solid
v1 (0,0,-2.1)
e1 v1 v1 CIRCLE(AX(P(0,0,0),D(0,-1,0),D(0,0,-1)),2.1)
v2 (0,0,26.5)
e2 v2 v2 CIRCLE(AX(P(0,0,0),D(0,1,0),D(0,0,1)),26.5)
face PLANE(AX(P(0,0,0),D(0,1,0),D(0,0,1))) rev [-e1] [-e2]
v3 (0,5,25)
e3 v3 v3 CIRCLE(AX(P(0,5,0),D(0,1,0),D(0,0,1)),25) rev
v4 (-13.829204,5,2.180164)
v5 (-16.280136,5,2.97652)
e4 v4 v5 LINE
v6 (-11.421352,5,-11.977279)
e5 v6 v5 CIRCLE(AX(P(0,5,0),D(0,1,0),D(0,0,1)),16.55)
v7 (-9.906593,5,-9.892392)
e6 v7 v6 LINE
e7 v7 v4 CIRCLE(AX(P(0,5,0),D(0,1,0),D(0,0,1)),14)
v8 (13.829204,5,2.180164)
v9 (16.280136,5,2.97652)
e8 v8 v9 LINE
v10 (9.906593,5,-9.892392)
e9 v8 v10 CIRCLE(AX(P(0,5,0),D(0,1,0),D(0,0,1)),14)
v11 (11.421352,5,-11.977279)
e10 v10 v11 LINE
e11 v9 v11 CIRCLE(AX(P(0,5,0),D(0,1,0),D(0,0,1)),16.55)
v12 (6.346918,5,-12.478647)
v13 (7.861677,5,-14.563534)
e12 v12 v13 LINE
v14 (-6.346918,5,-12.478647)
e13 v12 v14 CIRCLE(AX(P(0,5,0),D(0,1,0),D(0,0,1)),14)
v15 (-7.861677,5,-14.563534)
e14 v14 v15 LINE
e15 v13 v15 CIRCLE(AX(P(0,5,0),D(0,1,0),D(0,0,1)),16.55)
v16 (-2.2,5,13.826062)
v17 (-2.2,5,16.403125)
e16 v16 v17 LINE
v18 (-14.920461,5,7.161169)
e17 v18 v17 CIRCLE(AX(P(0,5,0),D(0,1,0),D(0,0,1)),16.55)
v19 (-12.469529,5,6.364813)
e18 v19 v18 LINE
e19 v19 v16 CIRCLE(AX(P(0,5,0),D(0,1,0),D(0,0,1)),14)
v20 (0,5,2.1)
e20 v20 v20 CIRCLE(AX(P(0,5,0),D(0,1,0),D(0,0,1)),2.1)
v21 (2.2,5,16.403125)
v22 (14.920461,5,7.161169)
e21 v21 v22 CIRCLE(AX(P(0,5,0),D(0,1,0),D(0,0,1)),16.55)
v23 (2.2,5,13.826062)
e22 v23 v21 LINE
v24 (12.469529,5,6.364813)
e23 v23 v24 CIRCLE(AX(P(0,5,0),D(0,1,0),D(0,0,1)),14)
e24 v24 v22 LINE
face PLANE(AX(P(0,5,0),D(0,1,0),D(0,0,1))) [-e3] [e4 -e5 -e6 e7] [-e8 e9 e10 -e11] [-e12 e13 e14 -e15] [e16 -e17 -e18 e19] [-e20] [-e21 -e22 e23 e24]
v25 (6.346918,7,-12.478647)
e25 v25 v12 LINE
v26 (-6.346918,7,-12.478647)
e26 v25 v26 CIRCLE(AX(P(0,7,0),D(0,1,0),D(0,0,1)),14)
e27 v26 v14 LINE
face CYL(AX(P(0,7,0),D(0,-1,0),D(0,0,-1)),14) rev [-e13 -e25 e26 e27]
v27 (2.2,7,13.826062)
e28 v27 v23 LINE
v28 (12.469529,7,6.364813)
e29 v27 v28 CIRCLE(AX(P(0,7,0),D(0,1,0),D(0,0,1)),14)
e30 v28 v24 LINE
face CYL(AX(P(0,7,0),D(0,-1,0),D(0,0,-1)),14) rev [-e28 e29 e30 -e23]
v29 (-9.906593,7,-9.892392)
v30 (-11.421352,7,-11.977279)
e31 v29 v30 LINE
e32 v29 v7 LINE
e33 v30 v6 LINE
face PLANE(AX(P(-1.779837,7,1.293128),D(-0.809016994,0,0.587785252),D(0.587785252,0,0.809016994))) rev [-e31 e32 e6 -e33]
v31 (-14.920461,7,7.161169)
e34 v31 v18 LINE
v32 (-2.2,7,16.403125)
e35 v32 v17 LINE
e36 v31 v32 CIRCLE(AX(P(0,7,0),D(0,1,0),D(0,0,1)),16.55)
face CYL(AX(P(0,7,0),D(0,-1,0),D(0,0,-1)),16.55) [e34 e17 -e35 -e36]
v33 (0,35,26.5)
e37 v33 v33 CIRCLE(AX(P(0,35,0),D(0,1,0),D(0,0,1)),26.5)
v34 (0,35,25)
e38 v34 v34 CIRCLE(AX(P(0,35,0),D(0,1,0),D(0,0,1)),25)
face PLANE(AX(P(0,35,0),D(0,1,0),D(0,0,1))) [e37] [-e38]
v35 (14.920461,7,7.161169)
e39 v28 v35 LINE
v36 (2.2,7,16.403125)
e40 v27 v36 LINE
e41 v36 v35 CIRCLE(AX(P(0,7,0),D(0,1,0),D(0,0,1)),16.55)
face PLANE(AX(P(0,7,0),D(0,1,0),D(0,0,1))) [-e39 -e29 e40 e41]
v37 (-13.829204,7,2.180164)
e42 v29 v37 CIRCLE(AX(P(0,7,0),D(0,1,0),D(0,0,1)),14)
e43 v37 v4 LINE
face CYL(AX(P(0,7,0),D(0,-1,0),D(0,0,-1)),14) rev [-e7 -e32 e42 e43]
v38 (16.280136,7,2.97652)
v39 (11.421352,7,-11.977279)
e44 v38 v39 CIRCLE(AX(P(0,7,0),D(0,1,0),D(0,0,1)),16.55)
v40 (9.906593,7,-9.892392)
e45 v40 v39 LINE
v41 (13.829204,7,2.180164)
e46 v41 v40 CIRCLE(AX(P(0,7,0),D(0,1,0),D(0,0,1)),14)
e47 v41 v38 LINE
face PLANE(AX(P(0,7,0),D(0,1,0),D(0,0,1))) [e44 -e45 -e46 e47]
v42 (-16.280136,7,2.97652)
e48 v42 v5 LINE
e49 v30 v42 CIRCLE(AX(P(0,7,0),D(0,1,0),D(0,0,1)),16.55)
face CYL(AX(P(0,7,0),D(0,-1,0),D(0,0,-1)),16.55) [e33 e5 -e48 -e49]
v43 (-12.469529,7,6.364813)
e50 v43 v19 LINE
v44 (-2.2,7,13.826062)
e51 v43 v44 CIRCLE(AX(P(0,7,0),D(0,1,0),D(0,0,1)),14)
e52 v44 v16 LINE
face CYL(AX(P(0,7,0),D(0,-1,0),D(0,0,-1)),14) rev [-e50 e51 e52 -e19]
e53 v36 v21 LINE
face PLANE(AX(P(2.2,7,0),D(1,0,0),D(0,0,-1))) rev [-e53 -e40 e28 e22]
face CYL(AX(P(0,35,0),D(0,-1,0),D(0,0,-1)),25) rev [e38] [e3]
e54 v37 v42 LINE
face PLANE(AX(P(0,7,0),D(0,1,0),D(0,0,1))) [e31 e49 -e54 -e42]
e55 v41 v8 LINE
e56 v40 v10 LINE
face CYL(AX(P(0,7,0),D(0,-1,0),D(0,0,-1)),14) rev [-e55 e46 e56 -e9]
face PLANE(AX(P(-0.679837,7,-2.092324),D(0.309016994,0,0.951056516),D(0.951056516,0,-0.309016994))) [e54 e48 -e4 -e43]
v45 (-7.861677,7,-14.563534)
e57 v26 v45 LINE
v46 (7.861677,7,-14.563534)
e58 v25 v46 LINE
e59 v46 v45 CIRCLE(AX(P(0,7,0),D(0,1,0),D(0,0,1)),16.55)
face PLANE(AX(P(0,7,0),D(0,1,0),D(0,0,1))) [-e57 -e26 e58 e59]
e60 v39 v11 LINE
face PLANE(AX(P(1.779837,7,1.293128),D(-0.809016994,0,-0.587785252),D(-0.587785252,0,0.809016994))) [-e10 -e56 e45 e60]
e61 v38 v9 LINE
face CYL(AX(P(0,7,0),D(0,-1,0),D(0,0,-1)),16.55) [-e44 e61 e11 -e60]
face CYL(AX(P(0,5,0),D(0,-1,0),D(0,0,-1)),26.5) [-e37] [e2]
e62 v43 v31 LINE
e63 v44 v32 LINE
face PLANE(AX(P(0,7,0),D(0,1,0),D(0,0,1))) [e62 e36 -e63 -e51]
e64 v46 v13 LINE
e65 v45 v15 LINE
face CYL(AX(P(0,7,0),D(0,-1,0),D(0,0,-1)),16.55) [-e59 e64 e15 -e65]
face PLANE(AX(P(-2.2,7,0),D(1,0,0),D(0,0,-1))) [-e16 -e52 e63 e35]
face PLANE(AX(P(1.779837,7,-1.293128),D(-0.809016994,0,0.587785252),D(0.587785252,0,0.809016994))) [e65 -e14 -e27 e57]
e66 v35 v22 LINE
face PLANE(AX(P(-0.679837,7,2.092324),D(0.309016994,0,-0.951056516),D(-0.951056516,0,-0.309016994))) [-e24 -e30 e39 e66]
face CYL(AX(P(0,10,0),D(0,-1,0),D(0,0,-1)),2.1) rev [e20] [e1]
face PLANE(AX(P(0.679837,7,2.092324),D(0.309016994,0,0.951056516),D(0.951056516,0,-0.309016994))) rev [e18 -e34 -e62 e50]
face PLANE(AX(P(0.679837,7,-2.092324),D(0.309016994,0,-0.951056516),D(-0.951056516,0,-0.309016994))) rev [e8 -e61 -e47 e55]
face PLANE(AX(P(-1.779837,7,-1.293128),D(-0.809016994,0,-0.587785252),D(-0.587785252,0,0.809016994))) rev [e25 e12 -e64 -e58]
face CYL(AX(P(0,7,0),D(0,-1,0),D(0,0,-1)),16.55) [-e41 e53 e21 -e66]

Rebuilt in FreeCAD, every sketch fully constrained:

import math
import FreeCAD as App
import Part
import Sketcher
from FreeCAD import Vector
Q = App.Units.Quantity

doc = App.newDocument("Part")
body = doc.addObject("PartDesign::Body", "Body")

sketch1 = doc.addObject("Sketcher::SketchObject", "Sketch")
body.addObject(sketch1)
sketch1.AttachmentSupport = (doc.XZ_Plane, [""])
sketch1.MapMode = "FlatFace"
sketch1.addGeometry(Part.Circle(Vector(0, 0, 0), Vector(0, 0, 1), 26), False)
sketch1.addConstraint([
    Sketcher.Constraint("Coincident", 0, 3, -1, 1),
    Sketcher.Constraint("Diameter", 0, 53.0),
])
pad1 = doc.addObject("PartDesign::Pad", "Pad")
body.addObject(pad1)
pad1.Profile = sketch1
pad1.Length = 5
pad1.Reversed = True

sketch2 = doc.addObject("Sketcher::SketchObject", "Sketch001")
body.addObject(sketch2)
sketch2.AttachmentSupport = (doc.XZ_Plane, [""])
sketch2.MapMode = "FlatFace"
sketch2.AttachmentOffset = App.Placement(Vector(0, 0, -5), App.Rotation())
sketch2.addGeometry([
    Part.Circle(Vector(0, 0, 0), Vector(0, 0, 1), 26),
    Part.Circle(Vector(0, 0, 0), Vector(0, 0, 1), 25),
], False)
sketch2.addConstraint([
    Sketcher.Constraint("Coincident", 0, 3, -1, 1),
    Sketcher.Constraint("Coincident", 1, 3, -1, 1),
    Sketcher.Constraint("Diameter", 0, 53.0),
    Sketcher.Constraint("Diameter", 1, 50.0),
])
pad2 = doc.addObject("PartDesign::Pad", "Pad001")
body.addObject(pad2)
pad2.Profile = sketch2
pad2.Length = 30
pad2.Reversed = True

sketch3 = doc.addObject("Sketcher::SketchObject", "Sketch002")
body.addObject(sketch3)
sketch3.AttachmentSupport = (doc.XZ_Plane, [""])
sketch3.MapMode = "FlatFace"
sketch3.addGeometry(Part.Circle(Vector(0, 0, 0), Vector(0, 0, 1), 2.1), False)
sketch3.addConstraint([
    Sketcher.Constraint("Coincident", 0, 3, -1, 1),
    Sketcher.Constraint("Diameter", 0, 4.2),
])
pocket1 = doc.addObject("PartDesign::Pocket", "Pocket")
body.addObject(pocket1)
pocket1.Profile = sketch3
pocket1.Length = 10

sketch4 = doc.addObject("Sketcher::SketchObject", "Sketch003")
body.addObject(sketch4)
sketch4.AttachmentSupport = (doc.XZ_Plane, [""])
sketch4.MapMode = "FlatFace"
sketch4.AttachmentOffset = App.Placement(Vector(0, 0, -5), App.Rotation())
sketch4.addGeometry([
    Part.ArcOfCircle(Part.Circle(Vector(0, 0, 0), Vector(0, 0, 1), 14), math.radians(171), math.radians(225)),
    Part.LineSegment(Vector(-9.9, -9.9, 0), Vector(-11.4, -12, 0)),
    Part.ArcOfCircle(Part.Circle(Vector(0, 0, 0), Vector(0, 0, 1), 16.5), math.radians(170), math.radians(226)),
    Part.LineSegment(Vector(-16.3, 3, 0), Vector(-13.8, 2.2, 0)),
    Part.ArcOfCircle(Part.Circle(Vector(0, 0, 0), Vector(0, 0, 1), 14), math.radians(-117), math.radians(-63)),
    Part.LineSegment(Vector(6.3, -12.5, 0), Vector(7.9, -14.6, 0)),
    Part.ArcOfCircle(Part.Circle(Vector(0, 0, 0), Vector(0, 0, 1), 16.6), math.radians(-118), math.radians(-62)),
    Part.LineSegment(Vector(-7.9, -14.6, 0), Vector(-6.3, -12.5, 0)),
    Part.ArcOfCircle(Part.Circle(Vector(0, 0, 0), Vector(0, 0, 1), 14), math.radians(0), math.radians(8.96)),
    Part.LineSegment(Vector(13.8, 2.2, 0), Vector(16.3, 3, 0)),
    Part.ArcOfCircle(Part.Circle(Vector(0, 0, 0), Vector(0, 0, 1), 16.5), math.radians(0), math.radians(10.36)),
    Part.ArcOfCircle(Part.Circle(Vector(0, 0, 0), Vector(0, 0, 1), 16.6), math.radians(-46), math.radians(0)),
    Part.LineSegment(Vector(11.4, -12, 0), Vector(9.9, -9.9, 0)),
    Part.ArcOfCircle(Part.Circle(Vector(0, 0, 0), Vector(0, 0, 1), 14), math.radians(-45), math.radians(0)),
    Part.ArcOfCircle(Part.Circle(Vector(0, 0, 0), Vector(0, 0, 1), 14), math.radians(27), math.radians(81)),
    Part.LineSegment(Vector(2.2, 13.8, 0), Vector(2.2, 16.4, 0)),
    Part.ArcOfCircle(Part.Circle(Vector(0, 0, 0), Vector(0, 0, 1), 16.6), math.radians(26), math.radians(82)),
    Part.LineSegment(Vector(14.9, 7.2, 0), Vector(12.5, 6.4, 0)),
    Part.LineSegment(Vector(-2.2, 16.4, 0), Vector(-2.2, 13.8, 0)),
    Part.ArcOfCircle(Part.Circle(Vector(0, 0, 0), Vector(0, 0, 1), 14), math.radians(99), math.radians(153)),
    Part.LineSegment(Vector(-12.5, 6.4, 0), Vector(-14.9, 7.2, 0)),
    Part.ArcOfCircle(Part.Circle(Vector(0, 0, 0), Vector(0, 0, 1), 16.6), math.radians(98), math.radians(154)),
], False)
sketch4.addConstraint([
    Sketcher.Constraint("Coincident", 0, 2, 1, 1),
    Sketcher.Constraint("Coincident", 1, 2, 2, 2),
    Sketcher.Constraint("Coincident", 2, 1, 3, 1),
    Sketcher.Constraint("Coincident", 3, 2, 0, 1),
    Sketcher.Constraint("Coincident", 4, 2, 5, 1),
    Sketcher.Constraint("Coincident", 5, 2, 6, 2),
    Sketcher.Constraint("Coincident", 6, 1, 7, 1),
    Sketcher.Constraint("Coincident", 7, 2, 4, 1),
    Sketcher.Constraint("Coincident", 8, 2, 9, 1),
    Sketcher.Constraint("Coincident", 9, 2, 10, 2),
    Sketcher.Constraint("Tangent", 10, 1, 11, 2),
    Sketcher.Constraint("Coincident", 11, 1, 12, 1),
    Sketcher.Constraint("Coincident", 12, 2, 13, 1),
    Sketcher.Constraint("Tangent", 13, 2, 8, 1),
    Sketcher.Constraint("Coincident", 14, 2, 15, 1),
    Sketcher.Constraint("Coincident", 15, 2, 16, 2),
    Sketcher.Constraint("Coincident", 16, 1, 17, 1),
    Sketcher.Constraint("Coincident", 17, 2, 14, 1),
    Sketcher.Constraint("Coincident", 18, 2, 19, 1),
    Sketcher.Constraint("Coincident", 19, 2, 20, 1),
    Sketcher.Constraint("Coincident", 20, 2, 21, 2),
    Sketcher.Constraint("Coincident", 21, 1, 18, 1),
    Sketcher.Constraint("Vertical", 15),
    Sketcher.Constraint("Vertical", 18),
    Sketcher.Constraint("Coincident", 0, 3, -1, 1),
    Sketcher.Constraint("Coincident", 2, 3, -1, 1),
    Sketcher.Constraint("Coincident", 4, 3, -1, 1),
    Sketcher.Constraint("Coincident", 6, 3, -1, 1),
    Sketcher.Constraint("Coincident", 8, 3, -1, 1),
    Sketcher.Constraint("Coincident", 10, 3, -1, 1),
    Sketcher.Constraint("Coincident", 14, 3, -1, 1),
    Sketcher.Constraint("Coincident", 16, 3, -1, 1),
    Sketcher.Constraint("Coincident", 19, 3, -1, 1),
    Sketcher.Constraint("Coincident", 21, 3, -1, 1),
    Sketcher.Constraint("Equal", 0, 4),
    Sketcher.Constraint("Equal", 2, 6),
    Sketcher.Constraint("Equal", 4, 8),
    Sketcher.Constraint("Equal", 6, 10),
    Sketcher.Constraint("Equal", 10, 11),
    Sketcher.Constraint("Equal", 8, 13),
    Sketcher.Constraint("Equal", 13, 14),
    Sketcher.Constraint("Equal", 11, 16),
    Sketcher.Constraint("Equal", 14, 19),
    Sketcher.Constraint("Equal", 16, 21),
    Sketcher.Constraint("PointOnObject", 10, 1, -1),
    Sketcher.Constraint("PointOnObject", 13, 2, -1),
    Sketcher.Constraint("Parallel", 1, 7),
    Sketcher.Constraint("Parallel", 5, 12),
    Sketcher.Constraint("Parallel", 9, 17),
    Sketcher.Constraint("Parallel", 3, 20),
    Sketcher.Constraint("Horizontal", 5, 2, 6, 1),
    Sketcher.Constraint("Horizontal", 4, 2, 7, 2),
    Sketcher.Constraint("Horizontal", 3, 2, 8, 2),
    Sketcher.Constraint("Horizontal", 2, 1, 9, 2),
    Sketcher.Constraint("Horizontal", 1, 2, 11, 1),
    Sketcher.Constraint("Horizontal", 14, 2, 18, 2),
    Sketcher.Constraint("Horizontal", 17, 2, 19, 2),
    Sketcher.Constraint("Equal", 1, 3),
    Sketcher.Constraint("Equal", 3, 5),
    Sketcher.Constraint("Equal", 12, 17),
    Sketcher.Constraint("Radius", 0, 14.0),
    Sketcher.Constraint("Angle", 1, Q("-126 deg")),
    Sketcher.Constraint("Angle", 3, Q("-18 deg")),
    Sketcher.Constraint("Radius", 2, 16.55),
    Sketcher.Constraint("DistanceX", -1, 1, 14, 2, 2.2),
    Sketcher.Constraint("DistanceY", 1, 2, 2, 1, 14.953799),
])
pad3 = doc.addObject("PartDesign::Pad", "Pad002")
body.addObject(pad3)
pad3.Profile = sketch4
pad3.Length = 2
pad3.Reversed = True

doc.recompute()
